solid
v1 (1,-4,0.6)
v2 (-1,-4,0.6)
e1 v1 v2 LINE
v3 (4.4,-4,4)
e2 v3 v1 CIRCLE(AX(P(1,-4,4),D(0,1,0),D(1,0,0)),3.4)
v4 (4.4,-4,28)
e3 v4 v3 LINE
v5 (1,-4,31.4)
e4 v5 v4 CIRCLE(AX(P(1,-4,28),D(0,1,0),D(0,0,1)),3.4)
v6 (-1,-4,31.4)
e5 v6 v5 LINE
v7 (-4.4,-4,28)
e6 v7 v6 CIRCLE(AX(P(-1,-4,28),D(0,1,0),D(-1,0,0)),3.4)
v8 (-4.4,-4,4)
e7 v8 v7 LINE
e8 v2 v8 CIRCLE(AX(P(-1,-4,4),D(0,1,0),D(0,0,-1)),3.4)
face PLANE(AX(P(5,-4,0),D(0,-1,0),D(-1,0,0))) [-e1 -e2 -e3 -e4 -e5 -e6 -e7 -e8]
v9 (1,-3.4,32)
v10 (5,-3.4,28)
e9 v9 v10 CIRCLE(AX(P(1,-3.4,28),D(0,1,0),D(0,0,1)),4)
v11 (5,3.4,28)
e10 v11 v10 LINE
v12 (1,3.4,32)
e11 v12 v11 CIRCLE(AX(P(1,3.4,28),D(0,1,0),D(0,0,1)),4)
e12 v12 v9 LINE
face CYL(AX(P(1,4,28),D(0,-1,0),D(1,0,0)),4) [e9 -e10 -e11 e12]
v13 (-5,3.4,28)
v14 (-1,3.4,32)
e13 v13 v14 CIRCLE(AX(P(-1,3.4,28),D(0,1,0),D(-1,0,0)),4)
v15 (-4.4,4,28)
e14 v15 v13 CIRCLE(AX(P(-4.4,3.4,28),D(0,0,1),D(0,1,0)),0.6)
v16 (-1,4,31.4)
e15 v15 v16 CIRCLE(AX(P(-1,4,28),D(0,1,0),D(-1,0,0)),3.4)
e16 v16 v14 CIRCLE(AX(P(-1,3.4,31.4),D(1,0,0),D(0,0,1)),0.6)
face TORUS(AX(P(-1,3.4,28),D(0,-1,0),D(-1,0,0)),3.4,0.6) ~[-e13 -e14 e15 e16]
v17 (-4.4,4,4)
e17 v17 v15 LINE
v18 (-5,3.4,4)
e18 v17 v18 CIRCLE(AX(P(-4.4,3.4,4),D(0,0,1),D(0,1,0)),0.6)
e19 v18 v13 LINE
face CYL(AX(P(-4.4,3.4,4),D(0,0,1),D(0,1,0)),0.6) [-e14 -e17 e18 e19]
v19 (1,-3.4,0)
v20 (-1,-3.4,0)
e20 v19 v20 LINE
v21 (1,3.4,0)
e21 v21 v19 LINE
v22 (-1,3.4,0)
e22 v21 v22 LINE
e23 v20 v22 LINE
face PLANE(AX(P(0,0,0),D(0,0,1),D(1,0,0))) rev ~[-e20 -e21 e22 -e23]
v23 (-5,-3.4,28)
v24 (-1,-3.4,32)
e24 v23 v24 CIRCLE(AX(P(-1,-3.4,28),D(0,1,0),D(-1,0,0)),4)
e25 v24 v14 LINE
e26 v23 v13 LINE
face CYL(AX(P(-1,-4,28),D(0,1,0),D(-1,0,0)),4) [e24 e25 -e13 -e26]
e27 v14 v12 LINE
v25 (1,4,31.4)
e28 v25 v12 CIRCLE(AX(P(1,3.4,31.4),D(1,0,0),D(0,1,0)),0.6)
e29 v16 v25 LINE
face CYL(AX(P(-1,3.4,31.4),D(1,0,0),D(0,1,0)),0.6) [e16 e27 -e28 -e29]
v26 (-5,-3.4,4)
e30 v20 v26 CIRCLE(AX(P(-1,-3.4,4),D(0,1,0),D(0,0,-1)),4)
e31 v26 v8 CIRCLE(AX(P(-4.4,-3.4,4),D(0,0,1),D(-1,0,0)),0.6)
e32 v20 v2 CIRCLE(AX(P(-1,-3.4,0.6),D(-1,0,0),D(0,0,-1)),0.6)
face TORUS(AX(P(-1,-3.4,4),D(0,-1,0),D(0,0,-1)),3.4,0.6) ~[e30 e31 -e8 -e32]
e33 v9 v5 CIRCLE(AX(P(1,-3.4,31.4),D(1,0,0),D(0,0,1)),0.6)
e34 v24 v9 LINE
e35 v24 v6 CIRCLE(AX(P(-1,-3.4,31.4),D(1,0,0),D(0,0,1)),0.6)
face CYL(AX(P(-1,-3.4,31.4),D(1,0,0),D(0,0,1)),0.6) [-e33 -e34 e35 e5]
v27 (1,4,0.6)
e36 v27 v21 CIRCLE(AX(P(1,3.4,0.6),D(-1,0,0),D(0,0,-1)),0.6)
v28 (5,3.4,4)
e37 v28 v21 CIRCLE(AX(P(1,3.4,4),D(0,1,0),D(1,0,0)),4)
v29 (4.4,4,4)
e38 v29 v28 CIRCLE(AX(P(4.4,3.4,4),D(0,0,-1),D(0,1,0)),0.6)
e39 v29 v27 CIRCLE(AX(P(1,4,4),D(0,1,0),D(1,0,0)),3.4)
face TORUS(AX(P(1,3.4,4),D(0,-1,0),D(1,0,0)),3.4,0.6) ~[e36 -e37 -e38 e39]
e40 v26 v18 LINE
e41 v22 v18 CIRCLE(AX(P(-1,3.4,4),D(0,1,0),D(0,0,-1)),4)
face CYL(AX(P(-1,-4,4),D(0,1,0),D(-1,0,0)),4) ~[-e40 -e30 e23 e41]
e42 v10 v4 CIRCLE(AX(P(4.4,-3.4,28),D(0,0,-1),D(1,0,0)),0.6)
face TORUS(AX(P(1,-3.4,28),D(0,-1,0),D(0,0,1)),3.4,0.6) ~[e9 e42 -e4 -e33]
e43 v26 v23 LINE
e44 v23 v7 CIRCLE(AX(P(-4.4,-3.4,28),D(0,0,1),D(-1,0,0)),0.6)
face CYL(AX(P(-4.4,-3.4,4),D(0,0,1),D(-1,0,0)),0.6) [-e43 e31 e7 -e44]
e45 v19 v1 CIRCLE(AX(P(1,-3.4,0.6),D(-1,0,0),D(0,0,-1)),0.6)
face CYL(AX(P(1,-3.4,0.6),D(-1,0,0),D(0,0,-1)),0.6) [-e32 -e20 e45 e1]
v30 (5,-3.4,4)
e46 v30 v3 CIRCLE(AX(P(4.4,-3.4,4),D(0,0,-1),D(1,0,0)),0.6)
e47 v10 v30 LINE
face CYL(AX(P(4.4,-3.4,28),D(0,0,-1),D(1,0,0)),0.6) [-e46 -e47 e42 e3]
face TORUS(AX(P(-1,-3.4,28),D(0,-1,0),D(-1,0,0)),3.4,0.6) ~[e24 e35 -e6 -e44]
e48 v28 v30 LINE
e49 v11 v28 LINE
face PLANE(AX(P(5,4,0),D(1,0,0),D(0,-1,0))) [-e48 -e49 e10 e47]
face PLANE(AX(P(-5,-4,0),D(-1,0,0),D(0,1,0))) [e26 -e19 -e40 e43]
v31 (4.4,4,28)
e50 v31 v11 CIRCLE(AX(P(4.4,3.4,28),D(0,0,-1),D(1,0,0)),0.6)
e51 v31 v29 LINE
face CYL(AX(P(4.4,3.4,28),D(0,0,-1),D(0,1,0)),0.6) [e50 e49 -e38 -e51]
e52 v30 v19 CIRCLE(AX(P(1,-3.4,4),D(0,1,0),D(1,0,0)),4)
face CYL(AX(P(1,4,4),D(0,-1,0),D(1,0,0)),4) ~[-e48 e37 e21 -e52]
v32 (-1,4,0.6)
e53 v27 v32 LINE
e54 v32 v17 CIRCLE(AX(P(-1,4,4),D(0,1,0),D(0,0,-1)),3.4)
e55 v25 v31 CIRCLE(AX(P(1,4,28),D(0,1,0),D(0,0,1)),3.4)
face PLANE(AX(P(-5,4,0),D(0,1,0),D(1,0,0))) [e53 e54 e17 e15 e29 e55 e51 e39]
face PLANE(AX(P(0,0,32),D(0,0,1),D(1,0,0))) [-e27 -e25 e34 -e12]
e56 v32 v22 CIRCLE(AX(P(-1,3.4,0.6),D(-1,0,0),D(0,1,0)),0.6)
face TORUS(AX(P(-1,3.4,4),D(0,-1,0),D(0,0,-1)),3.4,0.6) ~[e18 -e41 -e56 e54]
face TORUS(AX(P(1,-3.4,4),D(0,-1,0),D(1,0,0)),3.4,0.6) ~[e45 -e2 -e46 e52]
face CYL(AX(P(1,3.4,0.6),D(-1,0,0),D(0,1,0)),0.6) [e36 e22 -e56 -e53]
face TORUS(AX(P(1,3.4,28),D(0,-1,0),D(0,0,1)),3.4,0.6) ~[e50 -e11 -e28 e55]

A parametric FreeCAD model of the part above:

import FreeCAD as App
import Part
import Sketcher

V = App.Vector
Q = App.Units.Quantity


def edges_at(feature, points):
    """Names of the edges that pass closest to the given points."""
    edges = feature.Shape.Edges
    near = lambda p: min(range(len(edges)), key=lambda i: edges[i].distToShape(Part.Vertex(*p))[0])
    return sorted({f"Edge{near(p) + 1}" for p in points})

doc = App.newDocument("Part")
params = doc.addObject("Spreadsheet::Sheet", "Params")
for row, (alias, value) in enumerate([
    ("sketch1_width", "10 mm"),
    ("sketch1_height", "8 mm"),
    ("pad1_length", "32 mm"),
    ("fillet_radius", "4 mm"),
    ("fillet2_radius", "0.6 mm"),
], start=1):
    params.set(f"A{row}", alias)
    params.set(f"B{row}", "=" + value)
    params.setAlias(f"B{row}", alias)

body = doc.addObject("PartDesign::Body", "Body")

# Sketch on XY plane
sketch1 = body.newObject("Sketcher::SketchObject", "Sketch")
sketch1.AttachmentSupport = (doc.getObject("XY_Plane"), [""])
sketch1.MapMode = "FlatFace"
sketch1.addGeometry([
    Part.LineSegment(V(5, 4, 0), V(-5, 4, 0)),
    Part.LineSegment(V(-5, 4, 0), V(-5, -4, 0)),
    Part.LineSegment(V(-5, -4, 0), V(5, -4, 0)),
    Part.LineSegment(V(5, -4, 0), V(5, 4, 0)),
], False)
sketch1.addConstraint([
    Sketcher.Constraint("Coincident", 0, 2, 1, 1),
    Sketcher.Constraint("Coincident", 1, 2, 2, 1),
    Sketcher.Constraint("Coincident", 2, 2, 3, 1),
    Sketcher.Constraint("Coincident", 3, 2, 0, 1),
    Sketcher.Constraint("Horizontal", 0),
    Sketcher.Constraint("Vertical", 1),
    Sketcher.Constraint("Horizontal", 2),
    Sketcher.Constraint("Vertical", 3),
    Sketcher.Constraint("Symmetric", 0, 2, 2, 2, -1, 1),
    Sketcher.Constraint("DistanceX", 0, 2, 0, 1, Q("10 mm")),
    Sketcher.Constraint("DistanceY", 1, 2, 1, 1, Q("8 mm")),
])
sketch1.setExpression("Constraints[9]", "Params.sketch1_width")
sketch1.setExpression("Constraints[10]", "Params.sketch1_height")
pad1 = body.newObject("PartDesign::Pad", "Pad")
pad1.Profile = sketch1
pad1.setExpression("Length", "Params.pad1_length")
doc.recompute()

fillet = body.newObject("PartDesign::Fillet", "Fillet")
fillet.Base = (pad1, edges_at(pad1, [
    (5, 0, 32),
    (-5, 0, 32),
    (5, 0, 0),
    (-5, 0, 0),
]))
fillet.setExpression("Radius", "Params.fillet_radius")
doc.recompute()

fillet2 = body.newObject("PartDesign::Fillet", "Fillet001")
fillet2.Base = (fillet, edges_at(fillet, [
    (-5, 4, 16),
    (-5, -4, 16),
    (5, 4, 16),
    (5, -4, 16),
]))
fillet2.setExpression("Radius", "Params.fillet2_radius")

doc.recompute()
